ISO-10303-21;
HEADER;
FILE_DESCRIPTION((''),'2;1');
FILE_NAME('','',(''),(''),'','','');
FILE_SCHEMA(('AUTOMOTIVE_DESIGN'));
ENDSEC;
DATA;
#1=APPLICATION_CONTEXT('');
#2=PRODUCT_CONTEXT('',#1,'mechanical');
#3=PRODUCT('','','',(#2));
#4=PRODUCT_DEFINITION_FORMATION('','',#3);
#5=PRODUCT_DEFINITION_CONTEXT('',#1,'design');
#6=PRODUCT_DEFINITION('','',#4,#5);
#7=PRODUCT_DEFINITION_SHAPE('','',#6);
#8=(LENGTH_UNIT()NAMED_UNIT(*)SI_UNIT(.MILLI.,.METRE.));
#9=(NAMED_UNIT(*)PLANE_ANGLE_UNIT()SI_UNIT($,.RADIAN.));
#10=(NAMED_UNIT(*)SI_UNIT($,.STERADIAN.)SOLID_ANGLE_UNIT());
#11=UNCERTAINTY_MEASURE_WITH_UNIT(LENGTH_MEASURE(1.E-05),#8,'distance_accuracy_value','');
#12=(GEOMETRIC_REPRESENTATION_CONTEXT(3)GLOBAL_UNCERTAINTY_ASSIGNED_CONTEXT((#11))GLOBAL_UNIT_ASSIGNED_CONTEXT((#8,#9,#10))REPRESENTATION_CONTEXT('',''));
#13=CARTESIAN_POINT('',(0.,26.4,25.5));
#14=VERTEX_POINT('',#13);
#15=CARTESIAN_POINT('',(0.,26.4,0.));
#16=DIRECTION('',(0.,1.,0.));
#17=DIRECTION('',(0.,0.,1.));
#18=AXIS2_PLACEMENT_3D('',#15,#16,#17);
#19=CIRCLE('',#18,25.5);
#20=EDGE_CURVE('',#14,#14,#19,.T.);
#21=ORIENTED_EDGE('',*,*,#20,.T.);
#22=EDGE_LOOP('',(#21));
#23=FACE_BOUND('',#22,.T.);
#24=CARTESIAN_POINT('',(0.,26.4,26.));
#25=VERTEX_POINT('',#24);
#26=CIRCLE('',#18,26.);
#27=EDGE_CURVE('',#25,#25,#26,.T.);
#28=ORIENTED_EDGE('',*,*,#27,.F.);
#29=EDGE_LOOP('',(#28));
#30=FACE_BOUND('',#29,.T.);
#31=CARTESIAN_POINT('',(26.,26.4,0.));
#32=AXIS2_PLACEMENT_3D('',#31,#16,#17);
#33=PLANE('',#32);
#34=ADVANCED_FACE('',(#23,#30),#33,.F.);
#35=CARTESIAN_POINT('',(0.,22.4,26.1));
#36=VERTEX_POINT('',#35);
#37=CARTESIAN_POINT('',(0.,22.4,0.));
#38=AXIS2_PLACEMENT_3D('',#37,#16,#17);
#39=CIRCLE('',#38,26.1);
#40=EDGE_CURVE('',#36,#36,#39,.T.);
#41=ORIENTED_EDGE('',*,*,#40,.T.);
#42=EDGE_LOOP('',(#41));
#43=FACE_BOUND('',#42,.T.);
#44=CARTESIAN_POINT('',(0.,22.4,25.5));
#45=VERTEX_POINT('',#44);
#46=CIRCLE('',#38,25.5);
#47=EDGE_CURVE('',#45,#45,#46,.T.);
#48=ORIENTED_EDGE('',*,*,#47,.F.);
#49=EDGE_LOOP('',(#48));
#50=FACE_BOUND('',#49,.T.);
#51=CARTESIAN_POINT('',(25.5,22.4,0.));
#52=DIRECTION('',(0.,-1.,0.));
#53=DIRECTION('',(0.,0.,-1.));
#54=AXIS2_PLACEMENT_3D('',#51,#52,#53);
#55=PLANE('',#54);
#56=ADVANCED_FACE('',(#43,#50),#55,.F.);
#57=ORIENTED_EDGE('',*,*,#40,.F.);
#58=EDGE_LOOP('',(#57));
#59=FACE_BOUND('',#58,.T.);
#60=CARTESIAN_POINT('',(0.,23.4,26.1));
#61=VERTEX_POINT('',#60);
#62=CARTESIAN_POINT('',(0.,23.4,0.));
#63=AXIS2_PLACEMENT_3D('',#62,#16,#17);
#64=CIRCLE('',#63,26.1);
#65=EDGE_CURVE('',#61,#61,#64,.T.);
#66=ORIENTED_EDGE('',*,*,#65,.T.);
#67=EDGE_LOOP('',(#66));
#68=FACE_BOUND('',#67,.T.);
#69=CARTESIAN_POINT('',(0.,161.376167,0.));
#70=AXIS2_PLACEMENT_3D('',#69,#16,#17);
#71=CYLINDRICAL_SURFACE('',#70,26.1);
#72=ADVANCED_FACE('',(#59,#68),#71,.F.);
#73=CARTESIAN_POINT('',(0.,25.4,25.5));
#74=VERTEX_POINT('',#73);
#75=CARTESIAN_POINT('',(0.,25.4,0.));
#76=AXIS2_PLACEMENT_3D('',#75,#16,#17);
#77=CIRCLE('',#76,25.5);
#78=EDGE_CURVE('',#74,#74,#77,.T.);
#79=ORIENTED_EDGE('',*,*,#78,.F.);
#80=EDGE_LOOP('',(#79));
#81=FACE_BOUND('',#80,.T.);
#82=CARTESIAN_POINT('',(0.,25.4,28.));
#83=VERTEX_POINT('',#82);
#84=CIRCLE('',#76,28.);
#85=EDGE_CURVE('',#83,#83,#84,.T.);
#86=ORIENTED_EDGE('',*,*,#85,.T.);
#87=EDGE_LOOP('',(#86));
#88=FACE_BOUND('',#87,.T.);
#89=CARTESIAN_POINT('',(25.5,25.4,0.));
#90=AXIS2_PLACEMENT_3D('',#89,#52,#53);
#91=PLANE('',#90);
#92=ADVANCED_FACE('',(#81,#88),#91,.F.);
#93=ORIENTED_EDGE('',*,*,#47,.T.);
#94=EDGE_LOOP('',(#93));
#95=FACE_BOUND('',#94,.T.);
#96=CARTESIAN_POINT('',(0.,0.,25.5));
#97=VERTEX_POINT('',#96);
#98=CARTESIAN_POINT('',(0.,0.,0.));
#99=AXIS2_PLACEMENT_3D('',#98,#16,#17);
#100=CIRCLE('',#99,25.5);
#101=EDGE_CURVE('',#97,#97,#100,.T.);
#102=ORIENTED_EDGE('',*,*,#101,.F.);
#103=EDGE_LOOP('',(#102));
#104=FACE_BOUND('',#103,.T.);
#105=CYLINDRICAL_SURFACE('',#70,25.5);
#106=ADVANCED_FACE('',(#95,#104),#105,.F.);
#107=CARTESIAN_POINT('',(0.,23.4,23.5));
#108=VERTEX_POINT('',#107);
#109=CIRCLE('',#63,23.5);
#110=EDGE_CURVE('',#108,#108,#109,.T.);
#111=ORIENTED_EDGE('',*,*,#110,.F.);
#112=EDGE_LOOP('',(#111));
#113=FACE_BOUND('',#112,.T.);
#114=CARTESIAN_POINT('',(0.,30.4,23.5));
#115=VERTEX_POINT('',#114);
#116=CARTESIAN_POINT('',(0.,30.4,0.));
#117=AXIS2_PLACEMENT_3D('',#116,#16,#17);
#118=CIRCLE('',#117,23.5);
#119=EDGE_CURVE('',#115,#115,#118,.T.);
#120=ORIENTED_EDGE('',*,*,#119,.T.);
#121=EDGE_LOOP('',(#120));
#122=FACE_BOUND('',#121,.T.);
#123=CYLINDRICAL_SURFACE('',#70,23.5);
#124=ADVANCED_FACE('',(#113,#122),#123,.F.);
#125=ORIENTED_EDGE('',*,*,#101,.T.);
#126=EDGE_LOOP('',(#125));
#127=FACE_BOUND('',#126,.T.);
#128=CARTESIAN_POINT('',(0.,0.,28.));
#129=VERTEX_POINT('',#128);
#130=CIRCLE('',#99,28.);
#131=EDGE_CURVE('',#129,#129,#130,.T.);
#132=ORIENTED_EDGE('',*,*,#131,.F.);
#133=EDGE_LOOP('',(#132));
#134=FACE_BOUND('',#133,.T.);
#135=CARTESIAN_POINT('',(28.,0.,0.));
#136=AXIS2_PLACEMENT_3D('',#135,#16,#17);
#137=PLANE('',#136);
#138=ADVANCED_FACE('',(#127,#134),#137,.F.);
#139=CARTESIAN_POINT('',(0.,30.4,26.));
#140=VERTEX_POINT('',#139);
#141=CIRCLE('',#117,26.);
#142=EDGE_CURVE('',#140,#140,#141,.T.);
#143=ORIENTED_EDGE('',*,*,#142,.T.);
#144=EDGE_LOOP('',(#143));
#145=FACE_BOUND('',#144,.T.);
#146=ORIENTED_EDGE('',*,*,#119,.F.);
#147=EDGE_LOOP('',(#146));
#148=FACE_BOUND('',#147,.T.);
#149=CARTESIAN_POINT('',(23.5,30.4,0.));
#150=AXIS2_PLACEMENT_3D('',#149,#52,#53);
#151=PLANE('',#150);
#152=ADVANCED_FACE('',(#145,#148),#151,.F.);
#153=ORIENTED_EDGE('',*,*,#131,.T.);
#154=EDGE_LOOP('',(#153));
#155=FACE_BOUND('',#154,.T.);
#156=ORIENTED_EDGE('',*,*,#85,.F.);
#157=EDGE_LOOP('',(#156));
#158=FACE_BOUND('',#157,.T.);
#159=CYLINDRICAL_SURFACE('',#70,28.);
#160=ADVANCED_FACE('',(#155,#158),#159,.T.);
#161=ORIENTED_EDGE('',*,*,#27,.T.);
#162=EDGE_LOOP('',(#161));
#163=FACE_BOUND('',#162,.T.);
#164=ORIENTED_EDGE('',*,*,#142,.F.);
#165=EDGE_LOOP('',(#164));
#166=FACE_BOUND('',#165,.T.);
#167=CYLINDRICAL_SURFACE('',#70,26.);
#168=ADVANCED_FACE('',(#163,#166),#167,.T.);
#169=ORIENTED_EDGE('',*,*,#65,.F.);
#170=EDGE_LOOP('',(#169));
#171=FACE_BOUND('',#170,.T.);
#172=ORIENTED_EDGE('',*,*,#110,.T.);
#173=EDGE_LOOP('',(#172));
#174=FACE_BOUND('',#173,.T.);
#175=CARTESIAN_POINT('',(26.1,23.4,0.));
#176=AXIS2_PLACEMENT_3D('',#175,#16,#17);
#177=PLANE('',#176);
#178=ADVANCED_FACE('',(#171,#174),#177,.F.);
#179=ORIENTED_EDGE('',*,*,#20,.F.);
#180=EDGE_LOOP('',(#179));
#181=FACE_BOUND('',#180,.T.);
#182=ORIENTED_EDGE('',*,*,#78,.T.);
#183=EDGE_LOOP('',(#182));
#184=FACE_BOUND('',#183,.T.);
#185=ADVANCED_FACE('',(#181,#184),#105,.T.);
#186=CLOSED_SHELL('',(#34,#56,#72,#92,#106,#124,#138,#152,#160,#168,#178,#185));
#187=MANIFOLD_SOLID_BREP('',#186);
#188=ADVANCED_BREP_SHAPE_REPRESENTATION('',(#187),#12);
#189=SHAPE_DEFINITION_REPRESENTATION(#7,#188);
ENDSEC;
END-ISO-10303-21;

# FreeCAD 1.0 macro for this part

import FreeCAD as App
import Part
import Sketcher
from FreeCAD import Vector

doc = App.newDocument("Part")
body = doc.addObject("PartDesign::Body", "Body")

# Sketch on XY plane
sketch1 = doc.addObject("Sketcher::SketchObject", "Sketch")
body.addObject(sketch1)
sketch1.AttachmentSupport = (doc.XY_Plane, [""])
sketch1.MapMode = "FlatFace"
sketch1.addGeometry([
    Part.LineSegment(Vector(26, 30.4, 0), Vector(23.5, 30.4, 0)),  # 0
    Part.LineSegment(Vector(23.5, 30.4, 0), Vector(23.5, 23.4, 0)),  # 1
    Part.LineSegment(Vector(23.5, 23.4, 0), Vector(26.1, 23.4, 0)),  # 2
    Part.LineSegment(Vector(26.1, 23.4, 0), Vector(26.1, 22.4, 0)),  # 3
    Part.LineSegment(Vector(26.1, 22.4, 0), Vector(25.5, 22.4, 0)),  # 4
    Part.LineSegment(Vector(25.5, 22.4, 0), Vector(25.5, 0, 0)),  # 5
    Part.LineSegment(Vector(25.5, 0, 0), Vector(28, 0, 0)),  # 6
    Part.LineSegment(Vector(28, 0, 0), Vector(28, 25.4, 0)),  # 7
    Part.LineSegment(Vector(28, 25.4, 0), Vector(25.5, 25.4, 0)),  # 8
    Part.LineSegment(Vector(25.5, 25.4, 0), Vector(25.5, 26.4, 0)),  # 9
    Part.LineSegment(Vector(25.5, 26.4, 0), Vector(26, 26.4, 0)),  # 10
    Part.LineSegment(Vector(26, 26.4, 0), Vector(26, 30.4, 0)),  # 11
], False)
sketch1.addConstraint([
    Sketcher.Constraint("Coincident", 0, 2, 1, 1),
    Sketcher.Constraint("Coincident", 1, 2, 2, 1),
    Sketcher.Constraint("Coincident", 2, 2, 3, 1),
    Sketcher.Constraint("Coincident", 3, 2, 4, 1),
    Sketcher.Constraint("Coincident", 4, 2, 5, 1),
    Sketcher.Constraint("Coincident", 5, 2, 6, 1),
    Sketcher.Constraint("Coincident", 6, 2, 7, 1),
    Sketcher.Constraint("Coincident", 7, 2, 8, 1),
    Sketcher.Constraint("Coincident", 8, 2, 9, 1),
    Sketcher.Constraint("Coincident", 9, 2, 10, 1),
    Sketcher.Constraint("Coincident", 10, 2, 11, 1),
    Sketcher.Constraint("Coincident", 11, 2, 0, 1),
    Sketcher.Constraint("Horizontal", 0),
    Sketcher.Constraint("Vertical", 1),
    Sketcher.Constraint("Horizontal", 2),
    Sketcher.Constraint("Vertical", 3),
    Sketcher.Constraint("Horizontal", 4),
    Sketcher.Constraint("Vertical", 5),
    Sketcher.Constraint("Horizontal", 6),
    Sketcher.Constraint("Vertical", 7),
    Sketcher.Constraint("Horizontal", 8),
    Sketcher.Constraint("Vertical", 9),
    Sketcher.Constraint("Horizontal", 10),
    Sketcher.Constraint("Vertical", 11),
    Sketcher.Constraint("PointOnObject", 5, 2, -1),
    Sketcher.Constraint("Vertical", 5, 2, 8, 2),
    Sketcher.Constraint("Equal", 0, 6),
    Sketcher.Constraint("Equal", 3, 9),
    Sketcher.Constraint("DistanceY", 1, 2, 1, 1, 7.0),
    Sketcher.Constraint("DistanceY", 3, 2, 3, 1, 1.0),
    Sketcher.Constraint("DistanceY", 11, 1, 11, 2, 4.0),
    Sketcher.Constraint("DistanceX", 0, 2, 0, 1, 2.5),
    Sketcher.Constraint("DistanceX", 2, 1, 2, 2, 2.6),
    Sketcher.Constraint("DistanceX", 4, 2, 4, 1, 0.6),
    Sketcher.Constraint("DistanceY", 5, 2, 5, 1, 22.4),
    Sketcher.Constraint("DistanceX", -1, 1, 6, 2, 28.0),
])
revolution = doc.addObject("PartDesign::Revolution", "Revolution")
body.addObject(revolution)
revolution.Profile = sketch1
revolution.ReferenceAxis = (sketch1, ["V_Axis"])
revolution.Angle = 360

doc.recompute()
